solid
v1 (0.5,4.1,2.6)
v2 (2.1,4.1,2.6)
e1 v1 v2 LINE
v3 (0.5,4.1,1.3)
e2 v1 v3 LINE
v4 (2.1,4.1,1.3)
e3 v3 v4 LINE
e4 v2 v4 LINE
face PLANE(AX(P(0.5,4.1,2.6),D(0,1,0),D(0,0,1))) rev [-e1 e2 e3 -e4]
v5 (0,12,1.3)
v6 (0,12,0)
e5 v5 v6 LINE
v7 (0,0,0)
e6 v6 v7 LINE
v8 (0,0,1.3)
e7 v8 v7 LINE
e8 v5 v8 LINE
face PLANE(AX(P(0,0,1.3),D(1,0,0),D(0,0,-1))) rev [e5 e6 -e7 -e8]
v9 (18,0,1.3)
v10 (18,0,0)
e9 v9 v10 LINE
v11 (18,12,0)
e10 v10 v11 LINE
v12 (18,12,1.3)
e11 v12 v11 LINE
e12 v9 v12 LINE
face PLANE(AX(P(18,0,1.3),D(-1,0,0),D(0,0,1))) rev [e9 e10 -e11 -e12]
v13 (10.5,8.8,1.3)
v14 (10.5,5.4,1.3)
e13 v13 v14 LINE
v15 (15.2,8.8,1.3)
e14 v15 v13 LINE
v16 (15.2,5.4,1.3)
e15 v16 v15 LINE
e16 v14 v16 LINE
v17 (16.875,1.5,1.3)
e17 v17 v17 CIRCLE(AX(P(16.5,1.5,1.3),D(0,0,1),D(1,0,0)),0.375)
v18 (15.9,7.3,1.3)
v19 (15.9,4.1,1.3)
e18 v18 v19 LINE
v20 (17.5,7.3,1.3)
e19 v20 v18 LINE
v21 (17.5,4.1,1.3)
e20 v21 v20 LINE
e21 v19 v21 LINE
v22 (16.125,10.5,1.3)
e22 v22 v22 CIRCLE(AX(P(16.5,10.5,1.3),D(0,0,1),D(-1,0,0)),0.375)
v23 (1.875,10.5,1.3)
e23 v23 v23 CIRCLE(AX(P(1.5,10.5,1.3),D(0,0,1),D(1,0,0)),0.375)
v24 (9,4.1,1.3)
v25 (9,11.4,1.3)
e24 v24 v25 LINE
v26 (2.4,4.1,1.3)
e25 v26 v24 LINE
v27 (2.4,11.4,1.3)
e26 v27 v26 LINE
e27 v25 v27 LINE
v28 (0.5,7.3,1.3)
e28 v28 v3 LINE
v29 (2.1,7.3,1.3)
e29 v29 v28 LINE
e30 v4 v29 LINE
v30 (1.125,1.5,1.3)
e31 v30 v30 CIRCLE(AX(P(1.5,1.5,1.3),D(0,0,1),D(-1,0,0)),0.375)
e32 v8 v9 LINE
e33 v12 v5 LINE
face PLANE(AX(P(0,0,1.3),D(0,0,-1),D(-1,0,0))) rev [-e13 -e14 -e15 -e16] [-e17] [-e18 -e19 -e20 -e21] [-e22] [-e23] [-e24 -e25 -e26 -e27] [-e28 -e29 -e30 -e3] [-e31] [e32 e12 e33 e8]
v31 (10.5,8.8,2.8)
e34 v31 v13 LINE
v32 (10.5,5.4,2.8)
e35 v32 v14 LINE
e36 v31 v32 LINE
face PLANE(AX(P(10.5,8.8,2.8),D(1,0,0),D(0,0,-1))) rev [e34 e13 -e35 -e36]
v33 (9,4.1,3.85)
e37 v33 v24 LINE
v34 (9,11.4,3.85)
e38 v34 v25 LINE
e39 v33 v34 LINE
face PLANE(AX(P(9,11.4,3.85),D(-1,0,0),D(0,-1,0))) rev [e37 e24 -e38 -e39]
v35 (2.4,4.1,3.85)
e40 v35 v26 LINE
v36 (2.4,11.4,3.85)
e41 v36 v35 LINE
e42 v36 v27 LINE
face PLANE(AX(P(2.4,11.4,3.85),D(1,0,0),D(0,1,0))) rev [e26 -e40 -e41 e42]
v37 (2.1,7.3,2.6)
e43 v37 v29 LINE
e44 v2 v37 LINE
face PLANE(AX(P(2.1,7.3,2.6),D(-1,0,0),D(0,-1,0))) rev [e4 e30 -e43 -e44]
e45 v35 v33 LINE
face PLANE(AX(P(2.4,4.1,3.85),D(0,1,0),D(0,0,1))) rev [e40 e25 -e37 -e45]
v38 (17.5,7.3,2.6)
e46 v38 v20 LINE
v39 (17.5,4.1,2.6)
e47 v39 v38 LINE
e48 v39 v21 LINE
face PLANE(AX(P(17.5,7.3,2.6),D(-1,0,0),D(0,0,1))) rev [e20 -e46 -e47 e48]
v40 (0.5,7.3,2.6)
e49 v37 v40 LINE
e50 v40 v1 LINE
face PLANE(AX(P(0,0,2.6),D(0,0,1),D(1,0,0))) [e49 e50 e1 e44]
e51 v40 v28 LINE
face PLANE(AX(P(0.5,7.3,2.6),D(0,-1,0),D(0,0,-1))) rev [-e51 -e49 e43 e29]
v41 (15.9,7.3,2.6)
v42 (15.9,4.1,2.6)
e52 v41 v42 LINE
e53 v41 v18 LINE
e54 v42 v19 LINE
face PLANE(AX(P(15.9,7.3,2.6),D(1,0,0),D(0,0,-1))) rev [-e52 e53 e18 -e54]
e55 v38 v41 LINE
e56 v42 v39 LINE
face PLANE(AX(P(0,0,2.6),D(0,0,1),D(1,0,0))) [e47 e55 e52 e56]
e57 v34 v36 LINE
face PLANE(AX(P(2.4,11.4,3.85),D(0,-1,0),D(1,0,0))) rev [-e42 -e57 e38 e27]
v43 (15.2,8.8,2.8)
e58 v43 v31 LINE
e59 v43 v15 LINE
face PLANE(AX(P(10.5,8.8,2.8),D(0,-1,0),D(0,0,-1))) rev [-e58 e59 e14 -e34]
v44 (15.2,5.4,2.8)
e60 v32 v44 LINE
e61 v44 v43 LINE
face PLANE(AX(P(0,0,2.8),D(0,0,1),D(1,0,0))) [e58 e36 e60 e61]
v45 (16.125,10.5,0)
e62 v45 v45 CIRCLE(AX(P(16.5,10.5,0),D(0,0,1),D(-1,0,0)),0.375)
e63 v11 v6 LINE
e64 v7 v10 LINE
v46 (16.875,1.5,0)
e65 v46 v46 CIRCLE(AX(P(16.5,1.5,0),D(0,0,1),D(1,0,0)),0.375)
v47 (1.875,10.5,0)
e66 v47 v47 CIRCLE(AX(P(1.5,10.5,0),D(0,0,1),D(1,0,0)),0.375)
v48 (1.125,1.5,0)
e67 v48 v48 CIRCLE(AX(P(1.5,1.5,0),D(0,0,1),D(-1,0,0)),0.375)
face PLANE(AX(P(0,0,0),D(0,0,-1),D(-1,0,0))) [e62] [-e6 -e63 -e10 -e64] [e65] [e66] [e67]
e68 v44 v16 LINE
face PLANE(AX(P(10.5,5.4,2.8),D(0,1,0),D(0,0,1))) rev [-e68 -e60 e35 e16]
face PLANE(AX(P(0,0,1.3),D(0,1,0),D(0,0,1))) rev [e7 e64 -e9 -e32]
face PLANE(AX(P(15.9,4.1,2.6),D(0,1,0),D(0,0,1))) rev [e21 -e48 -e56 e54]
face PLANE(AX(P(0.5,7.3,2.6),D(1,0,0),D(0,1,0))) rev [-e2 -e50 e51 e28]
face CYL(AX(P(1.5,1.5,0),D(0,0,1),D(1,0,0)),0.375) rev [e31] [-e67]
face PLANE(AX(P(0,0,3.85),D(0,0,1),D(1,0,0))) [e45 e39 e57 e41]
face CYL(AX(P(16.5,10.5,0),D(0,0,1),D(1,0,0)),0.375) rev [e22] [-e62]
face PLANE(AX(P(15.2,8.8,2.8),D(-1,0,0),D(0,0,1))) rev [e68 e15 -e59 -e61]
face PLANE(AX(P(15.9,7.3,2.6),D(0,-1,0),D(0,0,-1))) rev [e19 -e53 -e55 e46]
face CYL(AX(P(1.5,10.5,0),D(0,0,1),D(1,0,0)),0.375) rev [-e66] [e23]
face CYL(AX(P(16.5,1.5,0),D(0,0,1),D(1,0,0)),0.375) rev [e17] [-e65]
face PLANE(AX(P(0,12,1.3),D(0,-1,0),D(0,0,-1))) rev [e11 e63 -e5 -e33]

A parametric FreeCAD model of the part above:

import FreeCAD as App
import Part
import Sketcher

V = App.Vector
Q = App.Units.Quantity

doc = App.newDocument("Part")
params = doc.addObject("Spreadsheet::Sheet", "Params")
for row, (alias, value) in enumerate([
    ("sketch1_width", "18 mm"),
    ("sketch1_height", "12 mm"),
    ("pad1_length", "1.3 mm"),
    ("sketch2_width", "6.6 mm"),
    ("sketch2_height", "7.3 mm"),
    ("pad2_length", "2.55 mm"),
    ("sketch3_width", "4.7 mm"),
    ("sketch3_height", "3.4 mm"),
    ("pad3_length", "1.5 mm"),
    ("sketch4_diameter", "0.75 mm"),
    ("sketch5_width", "1.6 mm"),
    ("sketch5_height", "3.2 mm"),
    ("pad4_length", "1.3 mm"),
], start=1):
    params.set(f"A{row}", alias)
    params.set(f"B{row}", "=" + value)
    params.setAlias(f"B{row}", alias)

body = doc.addObject("PartDesign::Body", "Body")

sketch1 = doc.addObject("Sketcher::SketchObject", "Sketch")
body.addObject(sketch1)
sketch1.AttachmentSupport = (doc.XY_Plane, [""])
sketch1.MapMode = "FlatFace"
sketch1.addGeometry(Part.LineSegment(V(0, 12, 0), V(0, 0, 0)), False)
sketch1.addGeometry(Part.LineSegment(V(0, 0, 0), V(18, 0, 0)), False)
sketch1.addGeometry(Part.LineSegment(V(18, 0, 0), V(18, 12, 0)), False)
sketch1.addGeometry(Part.LineSegment(V(18, 12, 0), V(0, 12, 0)), False)
sketch1.addConstraint(Sketcher.Constraint("Coincident", 0, 2, 1, 1))
sketch1.addConstraint(Sketcher.Constraint("Coincident", 1, 2, 2, 1))
sketch1.addConstraint(Sketcher.Constraint("Coincident", 2, 2, 3, 1))
sketch1.addConstraint(Sketcher.Constraint("Coincident", 3, 2, 0, 1))
sketch1.addConstraint(Sketcher.Constraint("Vertical", 0))
sketch1.addConstraint(Sketcher.Constraint("Horizontal", 1))
sketch1.addConstraint(Sketcher.Constraint("Vertical", 2))
sketch1.addConstraint(Sketcher.Constraint("Horizontal", 3))
sketch1.addConstraint(Sketcher.Constraint("Coincident", 0, 2, -1, 1))
sketch1.addConstraint(Sketcher.Constraint("DistanceX", 1, 1, 1, 2, Q("18 mm")))
sketch1.addConstraint(Sketcher.Constraint("DistanceY", 0, 2, 0, 1, Q("12 mm")))
sketch1.setExpression("Constraints[9]", "Params.sketch1_width")
sketch1.setExpression("Constraints[10]", "Params.sketch1_height")
pad1 = doc.addObject("PartDesign::Pad", "Pad")
body.addObject(pad1)
pad1.Profile = sketch1
pad1.setExpression("Length", "Params.pad1_length")

sketch2 = doc.addObject("Sketcher::SketchObject", "Sketch001")
body.addObject(sketch2)
sketch2.AttachmentSupport = (doc.XY_Plane, [""])
sketch2.MapMode = "FlatFace"
sketch2.AttachmentOffset = App.Placement(V(0, 0, 1.3), App.Rotation())
sketch2.addGeometry(Part.LineSegment(V(2, 11, 0), V(2, 4, 0)), False)
sketch2.addGeometry(Part.LineSegment(V(2, 4, 0), V(9, 4, 0)), False)
sketch2.addGeometry(Part.LineSegment(V(9, 4, 0), V(9, 11, 0)), False)
sketch2.addGeometry(Part.LineSegment(V(9, 11, 0), V(2, 11, 0)), False)
sketch2.addConstraint(Sketcher.Constraint("Coincident", 0, 2, 1, 1))
sketch2.addConstraint(Sketcher.Constraint("Coincident", 1, 2, 2, 1))
sketch2.addConstraint(Sketcher.Constraint("Coincident", 2, 2, 3, 1))
sketch2.addConstraint(Sketcher.Constraint("Coincident", 3, 2, 0, 1))
sketch2.addConstraint(Sketcher.Constraint("Vertical", 0))
sketch2.addConstraint(Sketcher.Constraint("Horizontal", 1))
sketch2.addConstraint(Sketcher.Constraint("Vertical", 2))
sketch2.addConstraint(Sketcher.Constraint("Horizontal", 3))
sketch2.addConstraint(Sketcher.Constraint("DistanceX", 1, 1, 1, 2, Q("6.6 mm")))
sketch2.addConstraint(Sketcher.Constraint("DistanceY", 0, 2, 0, 1, Q("7.3 mm")))
sketch2.addConstraint(Sketcher.Constraint("DistanceX", -1, 1, 1, 2, Q("9 mm")))
sketch2.addConstraint(Sketcher.Constraint("DistanceY", -1, 1, 0, 2, Q("4.1 mm")))
sketch2.setExpression("Constraints[8]", "Params.sketch2_width")
sketch2.setExpression("Constraints[9]", "Params.sketch2_height")
pad2 = doc.addObject("PartDesign::Pad", "Pad001")
body.addObject(pad2)
pad2.Profile = sketch2
pad2.setExpression("Length", "Params.pad2_length")

sketch3 = doc.addObject("Sketcher::SketchObject", "Sketch002")
body.addObject(sketch3)
sketch3.AttachmentSupport = (doc.XY_Plane, [""])
sketch3.MapMode = "FlatFace"
sketch3.AttachmentOffset = App.Placement(V(0, 0, 1.3), App.Rotation())
sketch3.addGeometry(Part.LineSegment(V(10.5, 8.8, 0), V(10.5, 5.4, 0)), False)
sketch3.addGeometry(Part.LineSegment(V(10.5, 5.4, 0), V(15.2, 5.4, 0)), False)
sketch3.addGeometry(Part.LineSegment(V(15.2, 5.4, 0), V(15.2, 8.8, 0)), False)
sketch3.addGeometry(Part.LineSegment(V(15.2, 8.8, 0), V(10.5, 8.8, 0)), False)
sketch3.addConstraint(Sketcher.Constraint("Coincident", 0, 2, 1, 1))
sketch3.addConstraint(Sketcher.Constraint("Coincident", 1, 2, 2, 1))
sketch3.addConstraint(Sketcher.Constraint("Coincident", 2, 2, 3, 1))
sketch3.addConstraint(Sketcher.Constraint("Coincident", 3, 2, 0, 1))
sketch3.addConstraint(Sketcher.Constraint("Vertical", 0))
sketch3.addConstraint(Sketcher.Constraint("Horizontal", 1))
sketch3.addConstraint(Sketcher.Constraint("Vertical", 2))
sketch3.addConstraint(Sketcher.Constraint("Horizontal", 3))
sketch3.addConstraint(Sketcher.Constraint("DistanceX", 1, 1, 1, 2, Q("4.7 mm")))
sketch3.addConstraint(Sketcher.Constraint("DistanceY", 0, 2, 0, 1, Q("3.4 mm")))
sketch3.addConstraint(Sketcher.Constraint("DistanceX", -1, 1, 0, 2, Q("10.5 mm")))
sketch3.addConstraint(Sketcher.Constraint("DistanceY", -1, 1, 0, 2, Q("5.4 mm")))
sketch3.setExpression("Constraints[8]", "Params.sketch3_width")
sketch3.setExpression("Constraints[9]", "Params.sketch3_height")
pad3 = doc.addObject("PartDesign::Pad", "Pad002")
body.addObject(pad3)
pad3.Profile = sketch3
pad3.setExpression("Length", "Params.pad3_length")

sketch4 = doc.addObject("Sketcher::SketchObject", "Sketch003")
body.addObject(sketch4)
sketch4.AttachmentSupport = (doc.XY_Plane, [""])
sketch4.MapMode = "FlatFace"
sketch4.AttachmentOffset = App.Placement(V(0, 0, 1.3), App.Rotation())
sketch4.addGeometry(Part.Circle(V(1.5, 10.5, 0), V(0, 0, 1), 0.38), False)
sketch4.addGeometry(Part.Circle(V(16.5, 10.5, 0), V(0, 0, 1), 0.38), False)
sketch4.addGeometry(Part.Circle(V(16.5, 1.5, 0), V(0, 0, 1), 0.38), False)
sketch4.addGeometry(Part.Circle(V(1.5, 1.5, 0), V(0, 0, 1), 0.38), False)
sketch4.addConstraint(Sketcher.Constraint("Equal", 0, 1))
sketch4.addConstraint(Sketcher.Constraint("Equal", 1, 2))
sketch4.addConstraint(Sketcher.Constraint("Equal", 2, 3))
sketch4.addConstraint(Sketcher.Constraint("Horizontal", 0, 3, 1, 3))
sketch4.addConstraint(Sketcher.Constraint("Horizontal", 2, 3, 3, 3))
sketch4.addConstraint(Sketcher.Constraint("Vertical", 1, 3, 2, 3))
sketch4.addConstraint(Sketcher.Constraint("Vertical", 0, 3, 3, 3))
sketch4.addConstraint(Sketcher.Constraint("Diameter", 0, Q("0.75 mm")))
sketch4.addConstraint(Sketcher.Constraint("DistanceX", 0, 3, 1, 3, Q("15 mm")))
sketch4.addConstraint(Sketcher.Constraint("DistanceY", 2, 3, 1, 3, Q("9 mm")))
sketch4.addConstraint(Sketcher.Constraint("DistanceX", -1, 1, 0, 3, Q("1.5 mm")))
sketch4.addConstraint(Sketcher.Constraint("DistanceY", -1, 1, 0, 3, Q("10.5 mm")))
sketch4.setExpression("Constraints[7]", "Params.sketch4_diameter")
pocket1 = doc.addObject("PartDesign::Pocket", "Pocket")
body.addObject(pocket1)
pocket1.Profile = sketch4
pocket1.Type = "ThroughAll"

sketch5 = doc.addObject("Sketcher::SketchObject", "Sketch004")
body.addObject(sketch5)
sketch5.AttachmentSupport = (doc.XY_Plane, [""])
sketch5.MapMode = "FlatFace"
sketch5.AttachmentOffset = App.Placement(V(0, 0, 1.3), App.Rotation())
sketch5.addGeometry(Part.LineSegment(V(0.5, 7.3, 0), V(0.5, 4.1, 0)), False)
sketch5.addGeometry(Part.LineSegment(V(0.5, 4.1, 0), V(2.1, 4.1, 0)), False)
sketch5.addGeometry(Part.LineSegment(V(2.1, 4.1, 0), V(2.1, 7.3, 0)), False)
sketch5.addGeometry(Part.LineSegment(V(2.1, 7.3, 0), V(0.5, 7.3, 0)), False)
sketch5.addGeometry(Part.LineSegment(V(15.9, 7.3, 0), V(15.9, 4.1, 0)), False)
sketch5.addGeometry(Part.LineSegment(V(15.9, 4.1, 0), V(17.5, 4.1, 0)), False)
sketch5.addGeometry(Part.LineSegment(V(17.5, 4.1, 0), V(17.5, 7.3, 0)), False)
sketch5.addGeometry(Part.LineSegment(V(17.5, 7.3, 0), V(15.9, 7.3, 0)), False)
sketch5.addConstraint(Sketcher.Constraint("Coincident", 0, 2, 1, 1))
sketch5.addConstraint(Sketcher.Constraint("Coincident", 1, 2, 2, 1))
sketch5.addConstraint(Sketcher.Constraint("Coincident", 2, 2, 3, 1))
sketch5.addConstraint(Sketcher.Constraint("Coincident", 3, 2, 0, 1))
sketch5.addConstraint(Sketcher.Constraint("Coincident", 4, 2, 5, 1))
sketch5.addConstraint(Sketcher.Constraint("Coincident", 5, 2, 6, 1))
sketch5.addConstraint(Sketcher.Constraint("Coincident", 6, 2, 7, 1))
sketch5.addConstraint(Sketcher.Constraint("Coincident", 7, 2, 4, 1))
sketch5.addConstraint(Sketcher.Constraint("Vertical", 0))
sketch5.addConstraint(Sketcher.Constraint("Horizontal", 1))
sketch5.addConstraint(Sketcher.Constraint("Vertical", 2))
sketch5.addConstraint(Sketcher.Constraint("Horizontal", 3))
sketch5.addConstraint(Sketcher.Constraint("Vertical", 4))
sketch5.addConstraint(Sketcher.Constraint("Horizontal", 5))
sketch5.addConstraint(Sketcher.Constraint("Vertical", 6))
sketch5.addConstraint(Sketcher.Constraint("Horizontal", 7))
sketch5.addConstraint(Sketcher.Constraint("Horizontal", 1, 2, 4, 2))
sketch5.addConstraint(Sketcher.Constraint("Horizontal", 3, 2, 6, 2))
sketch5.addConstraint(Sketcher.Constraint("Equal", 3, 5))
sketch5.addConstraint(Sketcher.Constraint("DistanceX", 1, 1, 1, 2, Q("1.6 mm")))
sketch5.addConstraint(Sketcher.Constraint("DistanceY", 0, 2, 0, 1, Q("3.2 mm")))
sketch5.addConstraint(Sketcher.Constraint("DistanceX", 0, 2, 5, 2, Q("17 mm")))
sketch5.addConstraint(Sketcher.Constraint("DistanceX", -1, 1, 0, 2, Q("0.5 mm")))
sketch5.addConstraint(Sketcher.Constraint("DistanceY", -1, 1, 0, 2, Q("4.1 mm")))
sketch5.setExpression("Constraints[19]", "Params.sketch5_width")
sketch5.setExpression("Constraints[20]", "Params.sketch5_height")
pad4 = doc.addObject("PartDesign::Pad", "Pad003")
body.addObject(pad4)
pad4.Profile = sketch5
pad4.setExpression("Length", "Params.pad4_length")

doc.recompute()
